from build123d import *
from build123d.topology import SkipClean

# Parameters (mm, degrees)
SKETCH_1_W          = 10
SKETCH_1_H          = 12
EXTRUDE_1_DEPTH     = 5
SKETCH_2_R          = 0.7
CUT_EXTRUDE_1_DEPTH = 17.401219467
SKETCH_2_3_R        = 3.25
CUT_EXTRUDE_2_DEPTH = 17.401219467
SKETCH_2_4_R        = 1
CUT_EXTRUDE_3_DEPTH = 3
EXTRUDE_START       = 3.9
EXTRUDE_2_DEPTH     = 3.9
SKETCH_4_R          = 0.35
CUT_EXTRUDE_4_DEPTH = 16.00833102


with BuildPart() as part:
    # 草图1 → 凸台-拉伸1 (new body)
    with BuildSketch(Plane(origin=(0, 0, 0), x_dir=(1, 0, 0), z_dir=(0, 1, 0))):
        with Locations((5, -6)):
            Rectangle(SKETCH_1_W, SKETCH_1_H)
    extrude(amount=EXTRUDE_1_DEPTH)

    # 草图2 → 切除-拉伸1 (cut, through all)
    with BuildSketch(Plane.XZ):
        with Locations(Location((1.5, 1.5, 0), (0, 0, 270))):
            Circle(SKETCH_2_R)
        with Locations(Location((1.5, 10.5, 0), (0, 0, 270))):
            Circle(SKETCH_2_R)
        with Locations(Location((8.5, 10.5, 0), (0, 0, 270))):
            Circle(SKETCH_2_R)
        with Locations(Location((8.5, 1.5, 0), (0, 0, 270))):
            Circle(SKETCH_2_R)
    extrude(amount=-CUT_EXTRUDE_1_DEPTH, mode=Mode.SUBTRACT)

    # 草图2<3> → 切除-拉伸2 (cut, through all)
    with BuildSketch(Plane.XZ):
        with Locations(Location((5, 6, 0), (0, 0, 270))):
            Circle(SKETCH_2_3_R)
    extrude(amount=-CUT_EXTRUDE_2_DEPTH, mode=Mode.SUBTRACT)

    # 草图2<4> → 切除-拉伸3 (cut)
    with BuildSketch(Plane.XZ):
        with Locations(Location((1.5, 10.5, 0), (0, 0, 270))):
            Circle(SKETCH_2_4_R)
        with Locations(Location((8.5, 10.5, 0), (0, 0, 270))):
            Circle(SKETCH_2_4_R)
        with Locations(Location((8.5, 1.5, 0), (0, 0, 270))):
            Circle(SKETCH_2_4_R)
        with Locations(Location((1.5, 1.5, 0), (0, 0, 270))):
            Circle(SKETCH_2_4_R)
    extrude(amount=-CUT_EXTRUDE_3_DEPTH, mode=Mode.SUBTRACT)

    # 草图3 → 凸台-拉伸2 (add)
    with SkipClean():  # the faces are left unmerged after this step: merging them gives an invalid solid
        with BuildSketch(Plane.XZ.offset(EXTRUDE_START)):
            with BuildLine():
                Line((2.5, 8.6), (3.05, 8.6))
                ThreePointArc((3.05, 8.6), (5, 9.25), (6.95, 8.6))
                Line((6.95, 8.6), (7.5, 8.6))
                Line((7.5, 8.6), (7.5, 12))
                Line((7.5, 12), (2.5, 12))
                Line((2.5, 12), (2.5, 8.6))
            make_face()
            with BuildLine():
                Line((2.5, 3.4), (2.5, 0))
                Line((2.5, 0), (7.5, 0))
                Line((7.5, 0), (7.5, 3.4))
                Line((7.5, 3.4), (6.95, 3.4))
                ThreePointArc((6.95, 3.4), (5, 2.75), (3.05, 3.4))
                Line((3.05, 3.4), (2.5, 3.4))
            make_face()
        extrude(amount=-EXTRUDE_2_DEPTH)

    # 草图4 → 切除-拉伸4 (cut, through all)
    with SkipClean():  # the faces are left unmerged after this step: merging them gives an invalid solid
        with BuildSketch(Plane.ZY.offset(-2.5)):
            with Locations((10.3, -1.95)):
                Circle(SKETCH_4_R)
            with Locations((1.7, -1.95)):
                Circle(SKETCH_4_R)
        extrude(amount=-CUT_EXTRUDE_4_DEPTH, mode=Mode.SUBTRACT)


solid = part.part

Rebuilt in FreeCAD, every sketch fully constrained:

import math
import FreeCAD as App
import Part
import Sketcher
from FreeCAD import Vector
Q = App.Units.Quantity

doc = App.newDocument("Part")
body = doc.addObject("PartDesign::Body", "Body")

sketch1 = body.newObject("Sketcher::SketchObject", "Sketch")
sketch1.AttachmentSupport = (doc.getObject("XZ_Plane"), [""])
sketch1.MapMode = "FlatFace"
sketch1.addGeometry(Part.LineSegment(Vector(0, 0, 0), Vector(0, 12, 0)), False)
sketch1.addGeometry(Part.LineSegment(Vector(0, 12, 0), Vector(10, 12, 0)), False)
sketch1.addGeometry(Part.LineSegment(Vector(10, 12, 0), Vector(10, 0, 0)), False)
sketch1.addGeometry(Part.LineSegment(Vector(10, 0, 0), Vector(0, 0, 0)), False)
sketch1.addConstraint(Sketcher.Constraint("Coincident", 0, 2, 1, 1))
sketch1.addConstraint(Sketcher.Constraint("Coincident", 1, 2, 2, 1))
sketch1.addConstraint(Sketcher.Constraint("Coincident", 2, 2, 3, 1))
sketch1.addConstraint(Sketcher.Constraint("Coincident", 3, 2, 0, 1))
sketch1.addConstraint(Sketcher.Constraint("Vertical", 0))
sketch1.addConstraint(Sketcher.Constraint("Horizontal", 1))
sketch1.addConstraint(Sketcher.Constraint("Vertical", 2))
sketch1.addConstraint(Sketcher.Constraint("Horizontal", 3))
sketch1.addConstraint(Sketcher.Constraint("Coincident", 3, 2, -1, 1))
sketch1.addConstraint(Sketcher.Constraint("DistanceX", 1, 1, 1, 2, Q("10 mm")))
sketch1.addConstraint(Sketcher.Constraint("DistanceY", 0, 1, 0, 2, Q("12 mm")))
pad1 = body.newObject("PartDesign::Pad", "Pad")
pad1.Profile = sketch1
pad1.Length = 5
pad1.Reversed = True

sketch2 = body.newObject("Sketcher::SketchObject", "Sketch001")
sketch2.AttachmentSupport = (doc.getObject("XZ_Plane"), [""])
sketch2.MapMode = "FlatFace"
sketch2.addGeometry(Part.Circle(Vector(1.5, 1.5, 0), Vector(0, 0, 1), 0.7), False)
sketch2.addGeometry(Part.Circle(Vector(1.5, 10.5, 0), Vector(0, 0, 1), 0.7), False)
sketch2.addGeometry(Part.Circle(Vector(8.5, 10.5, 0), Vector(0, 0, 1), 0.7), False)
sketch2.addGeometry(Part.Circle(Vector(8.5, 1.5, 0), Vector(0, 0, 1), 0.7), False)
sketch2.addConstraint(Sketcher.Constraint("Equal", 0, 1))
sketch2.addConstraint(Sketcher.Constraint("Equal", 1, 2))
sketch2.addConstraint(Sketcher.Constraint("Equal", 2, 3))
sketch2.addConstraint(Sketcher.Constraint("Horizontal", 1, 3, 2, 3))
sketch2.addConstraint(Sketcher.Constraint("Horizontal", 0, 3, 3, 3))
sketch2.addConstraint(Sketcher.Constraint("Vertical", 0, 3, 1, 3))
sketch2.addConstraint(Sketcher.Constraint("Vertical", 2, 3, 3, 3))
sketch2.addConstraint(Sketcher.Constraint("Diameter", 0, Q("1.4 mm")))
sketch2.addConstraint(Sketcher.Constraint("DistanceY", 0, 3, 1, 3, Q("9 mm")))
sketch2.addConstraint(Sketcher.Constraint("DistanceX", 1, 3, 2, 3, Q("7 mm")))
sketch2.addConstraint(Sketcher.Constraint("DistanceX", -1, 1, 0, 3, Q("1.5 mm")))
sketch2.addConstraint(Sketcher.Constraint("DistanceY", -1, 1, 0, 3, Q("1.5 mm")))
pocket1 = body.newObject("PartDesign::Pocket", "Pocket")
pocket1.Profile = sketch2
pocket1.Type = "ThroughAll"

sketch3 = body.newObject("Sketcher::SketchObject", "Sketch002")
sketch3.AttachmentSupport = (doc.getObject("XZ_Plane"), [""])
sketch3.MapMode = "FlatFace"
sketch3.addGeometry(Part.Circle(Vector(5, 6, 0), Vector(0, 0, 1), 3.2), False)
sketch3.addConstraint(Sketcher.Constraint("Diameter", 0, Q("6.5 mm")))
sketch3.addConstraint(Sketcher.Constraint("DistanceX", -1, 1, 0, 3, Q("5 mm")))
sketch3.addConstraint(Sketcher.Constraint("DistanceY", -1, 1, 0, 3, Q("6 mm")))
pocket2 = body.newObject("PartDesign::Pocket", "Pocket001")
pocket2.Profile = sketch3
pocket2.Type = "ThroughAll"

sketch4 = body.newObject("Sketcher::SketchObject", "Sketch003")
sketch4.AttachmentSupport = (doc.getObject("XZ_Plane"), [""])
sketch4.MapMode = "FlatFace"
sketch4.addGeometry(Part.Circle(Vector(1.5, 10.5, 0), Vector(0, 0, 1), 1), False)
sketch4.addGeometry(Part.Circle(Vector(8.5, 10.5, 0), Vector(0, 0, 1), 1), False)
sketch4.addGeometry(Part.Circle(Vector(8.5, 1.5, 0), Vector(0, 0, 1), 1), False)
sketch4.addGeometry(Part.Circle(Vector(1.5, 1.5, 0), Vector(0, 0, 1), 1), False)
sketch4.addConstraint(Sketcher.Constraint("Equal", 0, 1))
sketch4.addConstraint(Sketcher.Constraint("Equal", 1, 2))
sketch4.addConstraint(Sketcher.Constraint("Equal", 2, 3))
sketch4.addConstraint(Sketcher.Constraint("Horizontal", 0, 3, 1, 3))
sketch4.addConstraint(Sketcher.Constraint("Horizontal", 2, 3, 3, 3))
sketch4.addConstraint(Sketcher.Constraint("Vertical", 1, 3, 2, 3))
sketch4.addConstraint(Sketcher.Constraint("Vertical", 0, 3, 3, 3))
sketch4.addConstraint(Sketcher.Constraint("Diameter", 0, Q("2 mm")))
sketch4.addConstraint(Sketcher.Constraint("DistanceX", 0, 3, 1, 3, Q("7 mm")))
sketch4.addConstraint(Sketcher.Constraint("DistanceY", 2, 3, 1, 3, Q("9 mm")))
sketch4.addConstraint(Sketcher.Constraint("DistanceX", -1, 1, 0, 3, Q("1.5 mm")))
sketch4.addConstraint(Sketcher.Constraint("DistanceY", -1, 1, 0, 3, Q("10.5 mm")))
pocket3 = body.newObject("PartDesign::Pocket", "Pocket002")
pocket3.Profile = sketch4
pocket3.Length = 3

sketch5 = body.newObject("Sketcher::SketchObject", "Sketch004")
sketch5.AttachmentSupport = (doc.getObject("XZ_Plane"), [""])
sketch5.MapMode = "FlatFace"
sketch5.AttachmentOffset = App.Placement(Vector(0, 0, 3.9), App.Rotation())
sketch5.addGeometry(Part.LineSegment(Vector(2.5, 8.6, 0), Vector(3, 8.6, 0)), False)
sketch5.addGeometry(Part.ArcOfCircle(Part.Circle(Vector(5, 6, 0), Vector(0, 0, 1), 3.2), math.radians(53), math.radians(127)), False)
sketch5.addGeometry(Part.LineSegment(Vector(7, 8.6, 0), Vector(7.5, 8.6, 0)), False)
sketch5.addGeometry(Part.LineSegment(Vector(7.5, 8.6, 0), Vector(7.5, 12, 0)), False)
sketch5.addGeometry(Part.LineSegment(Vector(7.5, 12, 0), Vector(2.5, 12, 0)), False)
sketch5.addGeometry(Part.LineSegment(Vector(2.5, 12, 0), Vector(2.5, 8.6, 0)), False)
sketch5.addGeometry(Part.LineSegment(Vector(2.5, 3.4, 0), Vector(2.5, 0, 0)), False)
sketch5.addGeometry(Part.LineSegment(Vector(2.5, 0, 0), Vector(7.5, 0, 0)), False)
sketch5.addGeometry(Part.LineSegment(Vector(7.5, 0, 0), Vector(7.5, 3.4, 0)), False)
sketch5.addGeometry(Part.LineSegment(Vector(7.5, 3.4, 0), Vector(7, 3.4, 0)), False)
sketch5.addGeometry(Part.ArcOfCircle(Part.Circle(Vector(5, 6, 0), Vector(0, 0, 1), 3.2), math.radians(-127), math.radians(-53)), False)
sketch5.addGeometry(Part.LineSegment(Vector(3, 3.4, 0), Vector(2.5, 3.4, 0)), False)
sketch5.addConstraint(Sketcher.Constraint("Coincident", 0, 2, 1, 2))
sketch5.addConstraint(Sketcher.Constraint("Coincident", 1, 1, 2, 1))
sketch5.addConstraint(Sketcher.Constraint("Coincident", 2, 2, 3, 1))
sketch5.addConstraint(Sketcher.Constraint("Coincident", 3, 2, 4, 1))
sketch5.addConstraint(Sketcher.Constraint("Coincident", 4, 2, 5, 1))
sketch5.addConstraint(Sketcher.Constraint("Coincident", 5, 2, 0, 1))
sketch5.addConstraint(Sketcher.Constraint("Coincident", 6, 2, 7, 1))
sketch5.addConstraint(Sketcher.Constraint("Coincident", 7, 2, 8, 1))
sketch5.addConstraint(Sketcher.Constraint("Coincident", 8, 2, 9, 1))
sketch5.addConstraint(Sketcher.Constraint("Coincident", 9, 2, 10, 2))
sketch5.addConstraint(Sketcher.Constraint("Coincident", 10, 1, 11, 1))
sketch5.addConstraint(Sketcher.Constraint("Coincident", 11, 2, 6, 1))
sketch5.addConstraint(Sketcher.Constraint("Horizontal", 0))
sketch5.addConstraint(Sketcher.Constraint("Horizontal", 2))
sketch5.addConstraint(Sketcher.Constraint("Vertical", 3))
sketch5.addConstraint(Sketcher.Constraint("Horizontal", 4))
sketch5.addConstraint(Sketcher.Constraint("Vertical", 5))
sketch5.addConstraint(Sketcher.Constraint("Vertical", 6))
sketch5.addConstraint(Sketcher.Constraint("Horizontal", 7))
sketch5.addConstraint(Sketcher.Constraint("Vertical", 8))
sketch5.addConstraint(Sketcher.Constraint("Horizontal", 9))
sketch5.addConstraint(Sketcher.Constraint("Horizontal", 11))
sketch5.addConstraint(Sketcher.Constraint("Coincident", 10, 3, 1, 3))
sketch5.addConstraint(Sketcher.Constraint("Equal", 1, 10))
sketch5.addConstraint(Sketcher.Constraint("PointOnObject", 6, 2, -1))
sketch5.addConstraint(Sketcher.Constraint("Horizontal", 0, 2, 1, 1))
sketch5.addConstraint(Sketcher.Constraint("Horizontal", 9, 2, 10, 1))
sketch5.addConstraint(Sketcher.Constraint("Vertical", 5, 2, 6, 2))
sketch5.addConstraint(Sketcher.Constraint("Vertical", 3, 2, 7, 2))
sketch5.addConstraint(Sketcher.Constraint("Vertical", 1, 1, 9, 2))
sketch5.addConstraint(Sketcher.Constraint("Equal", 0, 2))
sketch5.addConstraint(Sketcher.Constraint("Equal", 5, 6))
sketch5.addConstraint(Sketcher.Constraint("DistanceX", 4, 2, 4, 1, Q("5 mm")))
sketch5.addConstraint(Sketcher.Constraint("Radius", 1, Q("3.25 mm")))
sketch5.addConstraint(Sketcher.Constraint("DistanceY", 3, 1, 3, 2, Q("3.4 mm")))
sketch5.addConstraint(Sketcher.Constraint("DistanceX", -1, 1, 1, 3, Q("5 mm")))
sketch5.addConstraint(Sketcher.Constraint("DistanceY", -1, 1, 1, 3, Q("6 mm")))
pad2 = body.newObject("PartDesign::Pad", "Pad001")
pad2.Profile = sketch5
pad2.Length = 3.9
pad2.Reversed = True

sketch6 = body.newObject("Sketcher::SketchObject", "Sketch005")
sketch6.AttachmentSupport = (doc.getObject("YZ_Plane"), [""])
sketch6.MapMode = "FlatFace"
sketch6.AttachmentOffset = App.Placement(Vector(0, 0, 2.5), App.Rotation())
sketch6.addGeometry(Part.Circle(Vector(-1.95, 10.3, 0), Vector(0, 0, 1), 0.35), False)
sketch6.addGeometry(Part.Circle(Vector(-1.95, 1.7, 0), Vector(0, 0, 1), 0.35), False)
sketch6.addConstraint(Sketcher.Constraint("Equal", 0, 1))
sketch6.addConstraint(Sketcher.Constraint("Vertical", 0, 3, 1, 3))
sketch6.addConstraint(Sketcher.Constraint("Diameter", 0, Q("0.7 mm")))
sketch6.addConstraint(Sketcher.Constraint("DistanceY", -1, 1, 0, 3, Q("10.3 mm")))
sketch6.addConstraint(Sketcher.Constraint("DistanceY", -1, 1, 1, 3, Q("1.7 mm")))
sketch6.addConstraint(Sketcher.Constraint("DistanceX", 0, 3, -1, 1, Q("1.95 mm")))
pocket4 = body.newObject("PartDesign::Pocket", "Pocket003")
pocket4.Profile = sketch6
pocket4.Type = "ThroughAll"
pocket4.Reversed = True

doc.recompute()
